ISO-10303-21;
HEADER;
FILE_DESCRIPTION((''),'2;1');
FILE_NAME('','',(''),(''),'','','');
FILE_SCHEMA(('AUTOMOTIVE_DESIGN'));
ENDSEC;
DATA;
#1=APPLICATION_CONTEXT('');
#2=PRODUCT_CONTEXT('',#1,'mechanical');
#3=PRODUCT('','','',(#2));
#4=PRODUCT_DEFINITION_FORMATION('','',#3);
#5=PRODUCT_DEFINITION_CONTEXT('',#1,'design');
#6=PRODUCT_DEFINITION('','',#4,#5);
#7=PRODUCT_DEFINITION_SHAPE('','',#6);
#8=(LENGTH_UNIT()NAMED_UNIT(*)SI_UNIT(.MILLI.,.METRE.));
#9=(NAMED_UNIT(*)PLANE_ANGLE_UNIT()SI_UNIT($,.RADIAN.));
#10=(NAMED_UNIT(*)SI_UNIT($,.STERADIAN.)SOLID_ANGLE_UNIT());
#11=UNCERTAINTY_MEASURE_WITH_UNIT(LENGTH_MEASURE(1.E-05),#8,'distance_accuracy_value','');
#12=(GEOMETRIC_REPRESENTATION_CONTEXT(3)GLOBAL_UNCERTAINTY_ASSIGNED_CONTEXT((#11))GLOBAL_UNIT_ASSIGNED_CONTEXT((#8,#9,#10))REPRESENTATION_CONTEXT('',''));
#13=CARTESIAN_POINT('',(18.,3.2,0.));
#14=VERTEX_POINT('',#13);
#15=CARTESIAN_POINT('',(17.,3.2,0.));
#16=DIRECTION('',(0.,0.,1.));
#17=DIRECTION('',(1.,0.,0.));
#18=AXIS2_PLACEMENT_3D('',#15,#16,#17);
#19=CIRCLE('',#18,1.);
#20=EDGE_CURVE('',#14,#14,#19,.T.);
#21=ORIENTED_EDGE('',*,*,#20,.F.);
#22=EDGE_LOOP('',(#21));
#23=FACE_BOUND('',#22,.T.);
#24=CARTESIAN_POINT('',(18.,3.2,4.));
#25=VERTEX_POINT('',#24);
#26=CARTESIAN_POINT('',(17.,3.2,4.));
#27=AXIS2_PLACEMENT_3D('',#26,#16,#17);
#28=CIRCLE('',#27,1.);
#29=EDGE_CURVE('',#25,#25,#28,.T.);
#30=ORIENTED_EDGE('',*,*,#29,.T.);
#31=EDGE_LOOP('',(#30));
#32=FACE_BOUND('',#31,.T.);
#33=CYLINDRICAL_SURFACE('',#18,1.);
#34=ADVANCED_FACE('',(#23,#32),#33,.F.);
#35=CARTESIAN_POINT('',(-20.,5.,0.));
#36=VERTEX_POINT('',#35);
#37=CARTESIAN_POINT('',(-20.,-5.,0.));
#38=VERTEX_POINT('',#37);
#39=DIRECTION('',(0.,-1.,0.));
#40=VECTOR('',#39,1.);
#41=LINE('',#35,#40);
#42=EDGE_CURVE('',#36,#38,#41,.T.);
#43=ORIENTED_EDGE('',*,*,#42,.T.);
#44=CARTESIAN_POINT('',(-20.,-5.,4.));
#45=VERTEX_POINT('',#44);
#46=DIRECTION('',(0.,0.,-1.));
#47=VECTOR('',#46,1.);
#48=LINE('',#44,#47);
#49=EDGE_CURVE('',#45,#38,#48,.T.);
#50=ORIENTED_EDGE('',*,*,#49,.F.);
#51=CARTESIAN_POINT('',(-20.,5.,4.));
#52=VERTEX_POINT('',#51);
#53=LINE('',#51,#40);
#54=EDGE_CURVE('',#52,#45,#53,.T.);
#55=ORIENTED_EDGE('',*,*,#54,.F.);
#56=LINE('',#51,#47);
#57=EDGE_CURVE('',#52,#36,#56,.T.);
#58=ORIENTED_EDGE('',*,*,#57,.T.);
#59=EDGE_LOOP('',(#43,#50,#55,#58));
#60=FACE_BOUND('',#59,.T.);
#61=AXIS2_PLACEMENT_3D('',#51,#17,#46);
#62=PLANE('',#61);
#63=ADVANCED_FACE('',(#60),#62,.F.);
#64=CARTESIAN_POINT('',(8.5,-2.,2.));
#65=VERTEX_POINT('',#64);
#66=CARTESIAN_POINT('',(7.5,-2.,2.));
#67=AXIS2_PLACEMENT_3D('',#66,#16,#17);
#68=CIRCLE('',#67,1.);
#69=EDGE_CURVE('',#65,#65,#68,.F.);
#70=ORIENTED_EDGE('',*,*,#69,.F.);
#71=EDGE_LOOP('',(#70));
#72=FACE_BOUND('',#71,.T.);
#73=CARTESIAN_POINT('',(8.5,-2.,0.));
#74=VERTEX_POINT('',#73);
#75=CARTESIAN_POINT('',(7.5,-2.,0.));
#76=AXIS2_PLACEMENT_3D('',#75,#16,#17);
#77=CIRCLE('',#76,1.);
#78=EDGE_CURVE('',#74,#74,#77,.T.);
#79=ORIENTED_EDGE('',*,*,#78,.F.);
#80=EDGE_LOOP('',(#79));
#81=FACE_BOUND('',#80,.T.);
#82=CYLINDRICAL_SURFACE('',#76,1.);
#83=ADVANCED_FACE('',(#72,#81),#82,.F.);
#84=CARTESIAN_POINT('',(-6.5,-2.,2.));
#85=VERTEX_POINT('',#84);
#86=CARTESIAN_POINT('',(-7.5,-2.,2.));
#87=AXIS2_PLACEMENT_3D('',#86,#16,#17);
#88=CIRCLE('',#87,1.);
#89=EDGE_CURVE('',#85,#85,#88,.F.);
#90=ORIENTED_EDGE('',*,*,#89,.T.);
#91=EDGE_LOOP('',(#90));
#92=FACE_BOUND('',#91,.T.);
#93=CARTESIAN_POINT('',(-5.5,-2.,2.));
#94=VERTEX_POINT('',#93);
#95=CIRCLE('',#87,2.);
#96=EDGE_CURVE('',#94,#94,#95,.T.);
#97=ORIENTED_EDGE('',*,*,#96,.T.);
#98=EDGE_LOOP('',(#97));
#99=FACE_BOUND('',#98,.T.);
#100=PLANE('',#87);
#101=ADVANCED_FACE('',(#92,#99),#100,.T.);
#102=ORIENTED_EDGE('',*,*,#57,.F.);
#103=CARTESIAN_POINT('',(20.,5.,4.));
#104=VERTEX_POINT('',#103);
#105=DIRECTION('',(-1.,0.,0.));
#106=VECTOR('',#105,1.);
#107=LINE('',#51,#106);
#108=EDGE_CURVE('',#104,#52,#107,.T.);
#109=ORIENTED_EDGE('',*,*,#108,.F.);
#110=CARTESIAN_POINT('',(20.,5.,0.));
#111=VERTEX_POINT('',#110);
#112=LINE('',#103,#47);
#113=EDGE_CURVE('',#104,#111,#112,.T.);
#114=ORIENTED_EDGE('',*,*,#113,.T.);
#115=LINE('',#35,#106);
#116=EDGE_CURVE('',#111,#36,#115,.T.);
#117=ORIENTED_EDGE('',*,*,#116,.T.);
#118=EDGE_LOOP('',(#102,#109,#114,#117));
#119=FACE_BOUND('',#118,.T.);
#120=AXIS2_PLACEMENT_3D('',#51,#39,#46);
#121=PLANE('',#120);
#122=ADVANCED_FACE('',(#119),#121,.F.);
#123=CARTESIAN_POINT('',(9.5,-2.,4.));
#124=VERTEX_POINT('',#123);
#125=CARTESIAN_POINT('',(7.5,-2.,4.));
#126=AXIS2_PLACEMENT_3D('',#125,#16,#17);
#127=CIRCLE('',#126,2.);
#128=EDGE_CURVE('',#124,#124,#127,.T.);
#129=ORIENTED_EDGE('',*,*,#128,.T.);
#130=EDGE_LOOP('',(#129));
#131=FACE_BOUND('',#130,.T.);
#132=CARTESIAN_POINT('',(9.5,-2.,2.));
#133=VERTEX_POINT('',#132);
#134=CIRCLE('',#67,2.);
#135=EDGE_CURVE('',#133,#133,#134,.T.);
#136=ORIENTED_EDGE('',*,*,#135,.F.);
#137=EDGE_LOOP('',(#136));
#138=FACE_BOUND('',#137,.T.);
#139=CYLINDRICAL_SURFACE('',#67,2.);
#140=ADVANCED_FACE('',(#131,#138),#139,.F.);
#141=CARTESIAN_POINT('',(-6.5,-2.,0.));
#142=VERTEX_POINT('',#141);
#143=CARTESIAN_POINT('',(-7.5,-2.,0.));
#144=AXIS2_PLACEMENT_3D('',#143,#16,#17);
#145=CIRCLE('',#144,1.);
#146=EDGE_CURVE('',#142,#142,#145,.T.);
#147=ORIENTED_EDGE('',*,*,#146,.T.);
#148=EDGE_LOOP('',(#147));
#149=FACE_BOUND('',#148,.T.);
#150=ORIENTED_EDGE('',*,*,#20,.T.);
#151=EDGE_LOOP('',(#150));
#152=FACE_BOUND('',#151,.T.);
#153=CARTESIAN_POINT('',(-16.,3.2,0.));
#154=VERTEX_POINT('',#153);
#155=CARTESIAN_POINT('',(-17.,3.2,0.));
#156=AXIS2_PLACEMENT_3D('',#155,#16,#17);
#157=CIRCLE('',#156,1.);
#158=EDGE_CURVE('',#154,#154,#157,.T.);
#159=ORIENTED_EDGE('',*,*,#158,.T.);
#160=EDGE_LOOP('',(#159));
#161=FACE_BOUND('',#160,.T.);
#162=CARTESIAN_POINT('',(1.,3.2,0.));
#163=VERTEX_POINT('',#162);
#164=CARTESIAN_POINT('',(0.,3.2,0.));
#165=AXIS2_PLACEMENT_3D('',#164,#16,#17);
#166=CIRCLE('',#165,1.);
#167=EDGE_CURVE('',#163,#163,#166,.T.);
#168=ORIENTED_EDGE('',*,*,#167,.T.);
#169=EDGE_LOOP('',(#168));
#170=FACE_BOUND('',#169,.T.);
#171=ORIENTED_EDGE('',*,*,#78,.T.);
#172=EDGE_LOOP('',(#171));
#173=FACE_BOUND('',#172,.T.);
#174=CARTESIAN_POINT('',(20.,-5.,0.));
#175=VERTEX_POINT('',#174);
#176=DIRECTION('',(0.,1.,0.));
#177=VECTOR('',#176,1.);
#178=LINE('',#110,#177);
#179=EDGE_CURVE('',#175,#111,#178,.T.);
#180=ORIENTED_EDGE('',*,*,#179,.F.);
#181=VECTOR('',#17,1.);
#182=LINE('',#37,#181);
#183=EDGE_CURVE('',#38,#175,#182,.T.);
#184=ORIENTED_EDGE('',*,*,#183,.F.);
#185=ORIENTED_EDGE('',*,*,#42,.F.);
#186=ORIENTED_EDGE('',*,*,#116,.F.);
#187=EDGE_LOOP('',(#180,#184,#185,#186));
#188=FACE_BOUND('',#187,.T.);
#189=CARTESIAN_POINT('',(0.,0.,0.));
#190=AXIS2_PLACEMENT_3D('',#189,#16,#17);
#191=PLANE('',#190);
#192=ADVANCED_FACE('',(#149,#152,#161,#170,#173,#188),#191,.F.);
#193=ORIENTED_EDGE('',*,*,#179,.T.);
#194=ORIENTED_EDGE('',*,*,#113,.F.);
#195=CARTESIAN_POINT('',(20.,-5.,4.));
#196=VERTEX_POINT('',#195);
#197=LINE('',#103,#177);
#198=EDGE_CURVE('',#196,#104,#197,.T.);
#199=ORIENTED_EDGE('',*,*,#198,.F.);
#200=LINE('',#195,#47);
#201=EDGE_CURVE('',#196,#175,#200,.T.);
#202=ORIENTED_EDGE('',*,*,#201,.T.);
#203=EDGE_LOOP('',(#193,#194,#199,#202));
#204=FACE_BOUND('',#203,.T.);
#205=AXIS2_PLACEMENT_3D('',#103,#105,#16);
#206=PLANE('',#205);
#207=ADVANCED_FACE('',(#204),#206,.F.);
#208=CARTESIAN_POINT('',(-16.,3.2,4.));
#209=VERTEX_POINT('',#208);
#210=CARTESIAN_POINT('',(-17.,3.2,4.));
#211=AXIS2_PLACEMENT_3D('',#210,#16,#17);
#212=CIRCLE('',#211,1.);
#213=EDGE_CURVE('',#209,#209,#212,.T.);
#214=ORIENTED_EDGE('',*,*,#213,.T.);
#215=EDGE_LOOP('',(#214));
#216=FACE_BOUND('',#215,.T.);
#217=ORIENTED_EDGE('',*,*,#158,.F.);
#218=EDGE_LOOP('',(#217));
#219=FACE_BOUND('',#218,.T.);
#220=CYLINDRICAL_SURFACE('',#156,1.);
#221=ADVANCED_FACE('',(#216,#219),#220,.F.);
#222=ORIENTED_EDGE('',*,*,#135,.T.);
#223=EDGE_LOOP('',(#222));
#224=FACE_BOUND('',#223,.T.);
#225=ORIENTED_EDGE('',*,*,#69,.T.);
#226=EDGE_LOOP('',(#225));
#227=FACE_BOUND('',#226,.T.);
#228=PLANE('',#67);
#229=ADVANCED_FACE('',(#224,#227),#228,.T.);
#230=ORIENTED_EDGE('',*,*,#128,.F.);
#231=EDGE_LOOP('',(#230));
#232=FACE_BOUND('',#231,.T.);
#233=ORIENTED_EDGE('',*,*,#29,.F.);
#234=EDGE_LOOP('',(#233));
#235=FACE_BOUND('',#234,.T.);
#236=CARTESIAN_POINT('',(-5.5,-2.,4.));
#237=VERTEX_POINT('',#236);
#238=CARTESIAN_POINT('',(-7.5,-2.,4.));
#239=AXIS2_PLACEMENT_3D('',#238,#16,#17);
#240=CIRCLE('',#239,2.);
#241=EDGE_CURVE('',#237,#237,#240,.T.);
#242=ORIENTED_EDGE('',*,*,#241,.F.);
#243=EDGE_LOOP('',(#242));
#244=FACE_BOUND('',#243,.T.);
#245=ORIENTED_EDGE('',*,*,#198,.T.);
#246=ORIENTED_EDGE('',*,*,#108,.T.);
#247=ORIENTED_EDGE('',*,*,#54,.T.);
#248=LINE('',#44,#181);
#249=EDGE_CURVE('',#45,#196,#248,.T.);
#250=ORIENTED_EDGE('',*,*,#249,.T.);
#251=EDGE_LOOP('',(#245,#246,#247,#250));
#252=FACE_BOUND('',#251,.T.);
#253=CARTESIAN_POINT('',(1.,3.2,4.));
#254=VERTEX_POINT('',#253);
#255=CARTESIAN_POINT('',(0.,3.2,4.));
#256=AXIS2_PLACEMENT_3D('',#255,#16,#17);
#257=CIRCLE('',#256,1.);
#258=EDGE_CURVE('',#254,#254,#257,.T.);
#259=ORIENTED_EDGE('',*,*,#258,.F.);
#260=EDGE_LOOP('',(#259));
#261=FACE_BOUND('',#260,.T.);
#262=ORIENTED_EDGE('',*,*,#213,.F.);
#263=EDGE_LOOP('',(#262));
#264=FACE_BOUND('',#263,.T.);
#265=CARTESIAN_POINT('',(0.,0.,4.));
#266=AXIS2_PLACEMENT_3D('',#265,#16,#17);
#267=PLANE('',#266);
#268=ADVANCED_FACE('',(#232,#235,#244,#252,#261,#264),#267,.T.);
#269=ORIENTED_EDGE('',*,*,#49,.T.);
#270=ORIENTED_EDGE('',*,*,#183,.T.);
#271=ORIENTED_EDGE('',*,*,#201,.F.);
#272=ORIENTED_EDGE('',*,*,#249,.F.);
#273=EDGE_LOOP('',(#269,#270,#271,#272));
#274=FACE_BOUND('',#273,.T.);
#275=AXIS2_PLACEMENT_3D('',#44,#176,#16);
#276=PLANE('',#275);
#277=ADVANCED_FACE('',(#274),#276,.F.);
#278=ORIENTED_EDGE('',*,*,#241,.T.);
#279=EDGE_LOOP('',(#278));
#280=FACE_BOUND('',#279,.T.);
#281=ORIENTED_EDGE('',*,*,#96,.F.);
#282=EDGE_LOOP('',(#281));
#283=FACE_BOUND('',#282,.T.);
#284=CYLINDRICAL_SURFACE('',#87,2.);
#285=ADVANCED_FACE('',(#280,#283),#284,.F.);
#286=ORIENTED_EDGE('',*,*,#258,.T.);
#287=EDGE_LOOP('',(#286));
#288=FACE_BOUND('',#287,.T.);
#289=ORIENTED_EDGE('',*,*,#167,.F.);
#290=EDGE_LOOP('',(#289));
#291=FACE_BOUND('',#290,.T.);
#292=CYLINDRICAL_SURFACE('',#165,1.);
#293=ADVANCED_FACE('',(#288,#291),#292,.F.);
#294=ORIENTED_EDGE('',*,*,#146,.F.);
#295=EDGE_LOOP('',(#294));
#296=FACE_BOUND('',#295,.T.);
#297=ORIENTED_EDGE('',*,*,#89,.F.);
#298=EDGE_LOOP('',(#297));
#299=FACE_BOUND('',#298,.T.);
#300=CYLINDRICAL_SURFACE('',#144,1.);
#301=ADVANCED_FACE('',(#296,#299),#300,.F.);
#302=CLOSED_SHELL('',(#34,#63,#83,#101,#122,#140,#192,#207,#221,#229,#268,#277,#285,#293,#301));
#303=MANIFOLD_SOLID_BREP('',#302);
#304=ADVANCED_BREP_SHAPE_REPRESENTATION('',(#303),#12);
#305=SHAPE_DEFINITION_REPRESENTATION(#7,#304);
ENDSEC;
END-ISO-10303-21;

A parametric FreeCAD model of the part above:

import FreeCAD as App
import Part
import Sketcher


def add_polygon(sketch, points):
    """Adds a closed chain of lines whose ends are joined by coincident constraints."""
    first, n = sketch.GeometryCount, len(points)
    for a, b in zip(points, points[1:] + points[:1]):
        sketch.addGeometry(Part.LineSegment(App.Vector(*a, 0), App.Vector(*b, 0)), False)
    for i in range(n):
        sketch.addConstraint(Sketcher.Constraint("Coincident", first + i, 2, first + (i + 1) % n, 1))

doc = App.newDocument("Part")
body = doc.addObject("PartDesign::Body", "Body")

# Sketch on XY plane
sketch1 = doc.addObject("Sketcher::SketchObject", "Sketch")
body.addObject(sketch1)
sketch1.AttachmentSupport = (doc.XY_Plane, [""])
sketch1.MapMode = "FlatFace"
add_polygon(sketch1, [(-20, 5), (-20, -5), (20, -5), (20, 5)])  # lines 0-3
sketch1.addConstraint(Sketcher.Constraint("Vertical", 0))
sketch1.addConstraint(Sketcher.Constraint("Horizontal", 1))
sketch1.addConstraint(Sketcher.Constraint("Vertical", 2))
sketch1.addConstraint(Sketcher.Constraint("Horizontal", 3))
sketch1.addConstraint(Sketcher.Constraint("Symmetric", 0, 2, 2, 2, -1, 1))
sketch1.addConstraint(Sketcher.Constraint("DistanceX", 1, 1, 1, 2, 40.0))
sketch1.addConstraint(Sketcher.Constraint("DistanceY", 0, 2, 0, 1, 10.0))
pad1 = doc.addObject("PartDesign::Pad", "Pad")
body.addObject(pad1)
pad1.Profile = sketch1
pad1.Length = 4

# Sketch on XY plane
sketch2 = doc.addObject("Sketcher::SketchObject", "Sketch001")
body.addObject(sketch2)
sketch2.AttachmentSupport = (doc.XY_Plane, [""])
sketch2.MapMode = "FlatFace"
sketch2.AttachmentOffset = App.Placement(App.Vector(0, 0, 4), App.Rotation())
sketch2.addGeometry(Part.Circle(App.Vector(-17, 3.2, 0), App.Vector(0, 0, 1), 1), False)
sketch2.addGeometry(Part.Circle(App.Vector(0, 3.2, 0), App.Vector(0, 0, 1), 1), False)
sketch2.addGeometry(Part.Circle(App.Vector(17, 3.2, 0), App.Vector(0, 0, 1), 1), False)
sketch2.addGeometry(Part.Circle(App.Vector(-7.5, -2, 0), App.Vector(0, 0, 1), 1), False)
sketch2.addGeometry(Part.Circle(App.Vector(7.5, -2, 0), App.Vector(0, 0, 1), 1), False)
sketch2.addConstraint(Sketcher.Constraint("Equal", 0, 1))
sketch2.addConstraint(Sketcher.Constraint("Equal", 1, 2))
sketch2.addConstraint(Sketcher.Constraint("Equal", 2, 3))
sketch2.addConstraint(Sketcher.Constraint("Equal", 3, 4))
sketch2.addConstraint(Sketcher.Constraint("Symmetric", 0, 3, 2, 3, -2))
sketch2.addConstraint(Sketcher.Constraint("Symmetric", 3, 3, 4, 3, -2))
sketch2.addConstraint(Sketcher.Constraint("PointOnObject", 1, 3, -2))
sketch2.addConstraint(Sketcher.Constraint("Horizontal", 0, 3, 1, 3))
sketch2.addConstraint(Sketcher.Constraint("Diameter", 0, 2.0))
sketch2.addConstraint(Sketcher.Constraint("DistanceX", 0, 3, -1, 1, 17.0))
sketch2.addConstraint(Sketcher.Constraint("DistanceY", 3, 3, -1, 1, 2.0))
sketch2.addConstraint(Sketcher.Constraint("DistanceX", 3, 3, 4, 3, 15.0))
sketch2.addConstraint(Sketcher.Constraint("DistanceY", -1, 1, 0, 3, 3.2))
pocket1 = doc.addObject("PartDesign::Pocket", "Pocket")
body.addObject(pocket1)
pocket1.Profile = sketch2
pocket1.Type = "ThroughAll"

# Sketch on XY plane
sketch3 = doc.addObject("Sketcher::SketchObject", "Sketch002")
body.addObject(sketch3)
sketch3.AttachmentSupport = (doc.XY_Plane, [""])
sketch3.MapMode = "FlatFace"
sketch3.AttachmentOffset = App.Placement(App.Vector(0, 0, 4), App.Rotation())
sketch3.addGeometry(Part.Circle(App.Vector(-7.5, -2, 0), App.Vector(0, 0, 1), 2), False)
sketch3.addGeometry(Part.Circle(App.Vector(7.5, -2, 0), App.Vector(0, 0, 1), 2), False)
sketch3.addConstraint(Sketcher.Constraint("Equal", 0, 1))
sketch3.addConstraint(Sketcher.Constraint("Symmetric", 0, 3, 1, 3, -2))
sketch3.addConstraint(Sketcher.Constraint("Diameter", 0, 4.0))
sketch3.addConstraint(Sketcher.Constraint("DistanceY", 0, 3, -1, 1, 2.0))
sketch3.addConstraint(Sketcher.Constraint("DistanceX", 0, 3, 1, 3, 15.0))
pocket2 = doc.addObject("PartDesign::Pocket", "Pocket001")
body.addObject(pocket2)
pocket2.Profile = sketch3
pocket2.Length = 2

doc.recompute()
